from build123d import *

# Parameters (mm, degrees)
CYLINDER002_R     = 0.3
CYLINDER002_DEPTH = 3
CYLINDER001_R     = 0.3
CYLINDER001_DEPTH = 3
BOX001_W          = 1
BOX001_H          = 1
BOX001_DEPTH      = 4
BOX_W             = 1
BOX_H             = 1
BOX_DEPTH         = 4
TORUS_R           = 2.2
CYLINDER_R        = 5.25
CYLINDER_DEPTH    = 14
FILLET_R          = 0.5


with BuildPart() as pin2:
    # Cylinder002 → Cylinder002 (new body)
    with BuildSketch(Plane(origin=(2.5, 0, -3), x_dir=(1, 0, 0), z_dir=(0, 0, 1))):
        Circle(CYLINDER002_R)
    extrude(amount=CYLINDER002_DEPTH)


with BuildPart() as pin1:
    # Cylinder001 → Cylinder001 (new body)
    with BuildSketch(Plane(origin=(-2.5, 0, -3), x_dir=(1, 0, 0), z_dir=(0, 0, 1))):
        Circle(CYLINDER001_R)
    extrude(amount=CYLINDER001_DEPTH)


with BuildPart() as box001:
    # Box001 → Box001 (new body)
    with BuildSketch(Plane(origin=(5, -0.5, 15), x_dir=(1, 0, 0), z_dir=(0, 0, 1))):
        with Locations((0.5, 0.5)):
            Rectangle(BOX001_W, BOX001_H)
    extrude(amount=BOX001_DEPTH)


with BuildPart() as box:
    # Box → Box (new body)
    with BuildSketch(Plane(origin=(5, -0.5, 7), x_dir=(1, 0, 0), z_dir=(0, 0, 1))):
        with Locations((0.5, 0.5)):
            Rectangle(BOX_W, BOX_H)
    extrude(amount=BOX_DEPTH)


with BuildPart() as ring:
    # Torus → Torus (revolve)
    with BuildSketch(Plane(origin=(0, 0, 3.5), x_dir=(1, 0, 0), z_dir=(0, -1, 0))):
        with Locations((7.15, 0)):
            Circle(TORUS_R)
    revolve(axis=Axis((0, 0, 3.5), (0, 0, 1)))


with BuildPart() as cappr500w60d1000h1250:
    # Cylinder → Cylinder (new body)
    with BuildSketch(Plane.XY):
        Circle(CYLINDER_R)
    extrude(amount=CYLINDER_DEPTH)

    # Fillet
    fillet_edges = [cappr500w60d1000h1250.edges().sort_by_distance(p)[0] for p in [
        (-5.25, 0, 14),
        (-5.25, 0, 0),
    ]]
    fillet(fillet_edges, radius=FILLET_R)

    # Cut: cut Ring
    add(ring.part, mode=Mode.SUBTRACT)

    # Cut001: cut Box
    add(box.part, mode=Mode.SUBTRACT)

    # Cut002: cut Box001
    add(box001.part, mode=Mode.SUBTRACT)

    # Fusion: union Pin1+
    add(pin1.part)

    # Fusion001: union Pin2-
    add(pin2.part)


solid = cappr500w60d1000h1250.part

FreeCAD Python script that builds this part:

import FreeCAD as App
import Part
import Sketcher

V = App.Vector
Q = App.Units.Quantity


def edges_at(feature, points):
    """Names of the edges that pass closest to the given points."""
    edges = feature.Shape.Edges
    near = lambda p: min(range(len(edges)), key=lambda i: edges[i].distToShape(Part.Vertex(*p))[0])
    return sorted({f"Edge{near(p) + 1}" for p in points})


def add_polygon(sketch, points):
    """Adds a closed chain of lines whose ends are joined by coincident constraints."""
    first, n = sketch.GeometryCount, len(points)
    for a, b in zip(points, points[1:] + points[:1]):
        sketch.addGeometry(Part.LineSegment(App.Vector(*a, 0), App.Vector(*b, 0)), False)
    for i in range(n):
        sketch.addConstraint(Sketcher.Constraint("Coincident", first + i, 2, first + (i + 1) % n, 1))

doc = App.newDocument("Part")
body = doc.addObject("PartDesign::Body", "Body")

# Sketch on XY plane
sketch1 = body.newObject("Sketcher::SketchObject", "Sketch")
sketch1.AttachmentSupport = (doc.getObject("XY_Plane"), [""])
sketch1.MapMode = "FlatFace"
sketch1.AttachmentOffset = App.Placement(V(0, 0, -3), App.Rotation())
sketch1.addGeometry(Part.Circle(V(2.5, 0, 0), V(0, 0, 1), 0.3), False)
sketch1.addConstraint(Sketcher.Constraint("PointOnObject", 0, 3, -1))
sketch1.addConstraint(Sketcher.Constraint("Diameter", 0, Q("0.6 mm")))
sketch1.addConstraint(Sketcher.Constraint("DistanceX", -1, 1, 0, 3, Q("2.5 mm")))
pad1 = body.newObject("PartDesign::Pad", "Pad")
pad1.Profile = sketch1
pad1.Length = 3
body2 = doc.addObject("PartDesign::Body", "Body001")

# Sketch on XY plane
sketch2 = body2.newObject("Sketcher::SketchObject", "Sketch001")
sketch2.AttachmentSupport = (doc.getObject("XY_Plane001"), [""])
sketch2.MapMode = "FlatFace"
sketch2.AttachmentOffset = App.Placement(V(0, 0, -3), App.Rotation())
sketch2.addGeometry(Part.Circle(V(-2.5, 0, 0), V(0, 0, 1), 0.3), False)
sketch2.addConstraint(Sketcher.Constraint("PointOnObject", 0, 3, -1))
sketch2.addConstraint(Sketcher.Constraint("Diameter", 0, Q("0.6 mm")))
sketch2.addConstraint(Sketcher.Constraint("DistanceX", 0, 3, -1, 1, Q("2.5 mm")))
pad2 = body2.newObject("PartDesign::Pad", "Pad001")
pad2.Profile = sketch2
pad2.Length = 3
body3 = doc.addObject("PartDesign::Body", "Body002")

# Sketch on XY plane
sketch3 = body3.newObject("Sketcher::SketchObject", "Sketch002")
sketch3.AttachmentSupport = (doc.getObject("XY_Plane002"), [""])
sketch3.MapMode = "FlatFace"
sketch3.AttachmentOffset = App.Placement(V(0, 0, 15), App.Rotation())
add_polygon(sketch3, [(5, 0.5), (5, -0.5), (6, -0.5), (6, 0.5)])  # lines 0-3
sketch3.addConstraint(Sketcher.Constraint("Vertical", 0))
sketch3.addConstraint(Sketcher.Constraint("Horizontal", 1))
sketch3.addConstraint(Sketcher.Constraint("Vertical", 2))
sketch3.addConstraint(Sketcher.Constraint("Horizontal", 3))
sketch3.addConstraint(Sketcher.Constraint("Equal", 3, 0))
sketch3.addConstraint(Sketcher.Constraint("DistanceX", 1, 1, 1, 2, Q("1 mm")))
sketch3.addConstraint(Sketcher.Constraint("DistanceX", -1, 1, 0, 2, Q("5 mm")))
sketch3.addConstraint(Sketcher.Constraint("DistanceY", 0, 2, -1, 1, Q("0.5 mm")))
pad3 = body3.newObject("PartDesign::Pad", "Pad002")
pad3.Profile = sketch3
pad3.Length = 4
body4 = doc.addObject("PartDesign::Body", "Body003")

# Sketch on XY plane
sketch4 = body4.newObject("Sketcher::SketchObject", "Sketch003")
sketch4.AttachmentSupport = (doc.getObject("XY_Plane003"), [""])
sketch4.MapMode = "FlatFace"
sketch4.AttachmentOffset = App.Placement(V(0, 0, 7), App.Rotation())
add_polygon(sketch4, [(5, 0.5), (5, -0.5), (6, -0.5), (6, 0.5)])  # lines 0-3
sketch4.addConstraint(Sketcher.Constraint("Vertical", 0))
sketch4.addConstraint(Sketcher.Constraint("Horizontal", 1))
sketch4.addConstraint(Sketcher.Constraint("Vertical", 2))
sketch4.addConstraint(Sketcher.Constraint("Horizontal", 3))
sketch4.addConstraint(Sketcher.Constraint("Equal", 3, 0))
sketch4.addConstraint(Sketcher.Constraint("DistanceX", 1, 1, 1, 2, Q("1 mm")))
sketch4.addConstraint(Sketcher.Constraint("DistanceX", -1, 1, 0, 2, Q("5 mm")))
sketch4.addConstraint(Sketcher.Constraint("DistanceY", 0, 2, -1, 1, Q("0.5 mm")))
pad4 = body4.newObject("PartDesign::Pad", "Pad003")
pad4.Profile = sketch4
pad4.Length = 4
body5 = doc.addObject("PartDesign::Body", "Body004")

# Sketch on XZ plane
sketch5 = body5.newObject("Sketcher::SketchObject", "Sketch004")
sketch5.AttachmentSupport = (doc.getObject("XZ_Plane004"), [""])
sketch5.MapMode = "FlatFace"
sketch5.addGeometry(Part.Circle(V(7.2, 3.5, 0), V(0, 0, 1), 2.2), False)
sketch5.addConstraint(Sketcher.Constraint("Diameter", 0, Q("4.4 mm")))
sketch5.addConstraint(Sketcher.Constraint("DistanceY", -1, 1, 0, 3, Q("3.5 mm")))
sketch5.addConstraint(Sketcher.Constraint("DistanceX", -1, 1, 0, 3, Q("7.15 mm")))
revolution = body5.newObject("PartDesign::Revolution", "Revolution")
revolution.Profile = sketch5
revolution.ReferenceAxis = (sketch5, ["V_Axis"])
revolution.Angle = 360
body6 = doc.addObject("PartDesign::Body", "Body005")

# Sketch on XY plane
sketch6 = body6.newObject("Sketcher::SketchObject", "Sketch005")
sketch6.AttachmentSupport = (doc.getObject("XY_Plane005"), [""])
sketch6.MapMode = "FlatFace"
sketch6.addGeometry(Part.Circle(V(0, 0, 0), V(0, 0, 1), 5), False)
sketch6.addConstraint(Sketcher.Constraint("Coincident", 0, 3, -1, 1))
sketch6.addConstraint(Sketcher.Constraint("Diameter", 0, Q("10.5 mm")))
pad5 = body6.newObject("PartDesign::Pad", "Pad004")
pad5.Profile = sketch6
pad5.Length = 14
doc.recompute()

fillet = body6.newObject("PartDesign::Fillet", "Fillet")
fillet.Base = (pad5, edges_at(pad5, [(-5.25, 0, 14), (-5.25, 0, 0)]))
fillet.Radius = 0.5
doc.recompute()

boolean = body6.newObject("PartDesign::Boolean", "Boolean")
boolean.Type = "Cut"
boolean.addObjects([body5])
doc.recompute()

boolean2 = body6.newObject("PartDesign::Boolean", "Boolean001")
boolean2.Type = "Cut"
boolean2.addObjects([body4])
doc.recompute()

boolean3 = body6.newObject("PartDesign::Boolean", "Boolean002")
boolean3.Type = "Cut"
boolean3.addObjects([body3])
doc.recompute()

boolean4 = body6.newObject("PartDesign::Boolean", "Boolean003")
boolean4.Type = "Fuse"
boolean4.addObjects([body2])
doc.recompute()

boolean5 = body6.newObject("PartDesign::Boolean", "Boolean004")
boolean5.Type = "Fuse"
boolean5.addObjects([body])

doc.recompute()
